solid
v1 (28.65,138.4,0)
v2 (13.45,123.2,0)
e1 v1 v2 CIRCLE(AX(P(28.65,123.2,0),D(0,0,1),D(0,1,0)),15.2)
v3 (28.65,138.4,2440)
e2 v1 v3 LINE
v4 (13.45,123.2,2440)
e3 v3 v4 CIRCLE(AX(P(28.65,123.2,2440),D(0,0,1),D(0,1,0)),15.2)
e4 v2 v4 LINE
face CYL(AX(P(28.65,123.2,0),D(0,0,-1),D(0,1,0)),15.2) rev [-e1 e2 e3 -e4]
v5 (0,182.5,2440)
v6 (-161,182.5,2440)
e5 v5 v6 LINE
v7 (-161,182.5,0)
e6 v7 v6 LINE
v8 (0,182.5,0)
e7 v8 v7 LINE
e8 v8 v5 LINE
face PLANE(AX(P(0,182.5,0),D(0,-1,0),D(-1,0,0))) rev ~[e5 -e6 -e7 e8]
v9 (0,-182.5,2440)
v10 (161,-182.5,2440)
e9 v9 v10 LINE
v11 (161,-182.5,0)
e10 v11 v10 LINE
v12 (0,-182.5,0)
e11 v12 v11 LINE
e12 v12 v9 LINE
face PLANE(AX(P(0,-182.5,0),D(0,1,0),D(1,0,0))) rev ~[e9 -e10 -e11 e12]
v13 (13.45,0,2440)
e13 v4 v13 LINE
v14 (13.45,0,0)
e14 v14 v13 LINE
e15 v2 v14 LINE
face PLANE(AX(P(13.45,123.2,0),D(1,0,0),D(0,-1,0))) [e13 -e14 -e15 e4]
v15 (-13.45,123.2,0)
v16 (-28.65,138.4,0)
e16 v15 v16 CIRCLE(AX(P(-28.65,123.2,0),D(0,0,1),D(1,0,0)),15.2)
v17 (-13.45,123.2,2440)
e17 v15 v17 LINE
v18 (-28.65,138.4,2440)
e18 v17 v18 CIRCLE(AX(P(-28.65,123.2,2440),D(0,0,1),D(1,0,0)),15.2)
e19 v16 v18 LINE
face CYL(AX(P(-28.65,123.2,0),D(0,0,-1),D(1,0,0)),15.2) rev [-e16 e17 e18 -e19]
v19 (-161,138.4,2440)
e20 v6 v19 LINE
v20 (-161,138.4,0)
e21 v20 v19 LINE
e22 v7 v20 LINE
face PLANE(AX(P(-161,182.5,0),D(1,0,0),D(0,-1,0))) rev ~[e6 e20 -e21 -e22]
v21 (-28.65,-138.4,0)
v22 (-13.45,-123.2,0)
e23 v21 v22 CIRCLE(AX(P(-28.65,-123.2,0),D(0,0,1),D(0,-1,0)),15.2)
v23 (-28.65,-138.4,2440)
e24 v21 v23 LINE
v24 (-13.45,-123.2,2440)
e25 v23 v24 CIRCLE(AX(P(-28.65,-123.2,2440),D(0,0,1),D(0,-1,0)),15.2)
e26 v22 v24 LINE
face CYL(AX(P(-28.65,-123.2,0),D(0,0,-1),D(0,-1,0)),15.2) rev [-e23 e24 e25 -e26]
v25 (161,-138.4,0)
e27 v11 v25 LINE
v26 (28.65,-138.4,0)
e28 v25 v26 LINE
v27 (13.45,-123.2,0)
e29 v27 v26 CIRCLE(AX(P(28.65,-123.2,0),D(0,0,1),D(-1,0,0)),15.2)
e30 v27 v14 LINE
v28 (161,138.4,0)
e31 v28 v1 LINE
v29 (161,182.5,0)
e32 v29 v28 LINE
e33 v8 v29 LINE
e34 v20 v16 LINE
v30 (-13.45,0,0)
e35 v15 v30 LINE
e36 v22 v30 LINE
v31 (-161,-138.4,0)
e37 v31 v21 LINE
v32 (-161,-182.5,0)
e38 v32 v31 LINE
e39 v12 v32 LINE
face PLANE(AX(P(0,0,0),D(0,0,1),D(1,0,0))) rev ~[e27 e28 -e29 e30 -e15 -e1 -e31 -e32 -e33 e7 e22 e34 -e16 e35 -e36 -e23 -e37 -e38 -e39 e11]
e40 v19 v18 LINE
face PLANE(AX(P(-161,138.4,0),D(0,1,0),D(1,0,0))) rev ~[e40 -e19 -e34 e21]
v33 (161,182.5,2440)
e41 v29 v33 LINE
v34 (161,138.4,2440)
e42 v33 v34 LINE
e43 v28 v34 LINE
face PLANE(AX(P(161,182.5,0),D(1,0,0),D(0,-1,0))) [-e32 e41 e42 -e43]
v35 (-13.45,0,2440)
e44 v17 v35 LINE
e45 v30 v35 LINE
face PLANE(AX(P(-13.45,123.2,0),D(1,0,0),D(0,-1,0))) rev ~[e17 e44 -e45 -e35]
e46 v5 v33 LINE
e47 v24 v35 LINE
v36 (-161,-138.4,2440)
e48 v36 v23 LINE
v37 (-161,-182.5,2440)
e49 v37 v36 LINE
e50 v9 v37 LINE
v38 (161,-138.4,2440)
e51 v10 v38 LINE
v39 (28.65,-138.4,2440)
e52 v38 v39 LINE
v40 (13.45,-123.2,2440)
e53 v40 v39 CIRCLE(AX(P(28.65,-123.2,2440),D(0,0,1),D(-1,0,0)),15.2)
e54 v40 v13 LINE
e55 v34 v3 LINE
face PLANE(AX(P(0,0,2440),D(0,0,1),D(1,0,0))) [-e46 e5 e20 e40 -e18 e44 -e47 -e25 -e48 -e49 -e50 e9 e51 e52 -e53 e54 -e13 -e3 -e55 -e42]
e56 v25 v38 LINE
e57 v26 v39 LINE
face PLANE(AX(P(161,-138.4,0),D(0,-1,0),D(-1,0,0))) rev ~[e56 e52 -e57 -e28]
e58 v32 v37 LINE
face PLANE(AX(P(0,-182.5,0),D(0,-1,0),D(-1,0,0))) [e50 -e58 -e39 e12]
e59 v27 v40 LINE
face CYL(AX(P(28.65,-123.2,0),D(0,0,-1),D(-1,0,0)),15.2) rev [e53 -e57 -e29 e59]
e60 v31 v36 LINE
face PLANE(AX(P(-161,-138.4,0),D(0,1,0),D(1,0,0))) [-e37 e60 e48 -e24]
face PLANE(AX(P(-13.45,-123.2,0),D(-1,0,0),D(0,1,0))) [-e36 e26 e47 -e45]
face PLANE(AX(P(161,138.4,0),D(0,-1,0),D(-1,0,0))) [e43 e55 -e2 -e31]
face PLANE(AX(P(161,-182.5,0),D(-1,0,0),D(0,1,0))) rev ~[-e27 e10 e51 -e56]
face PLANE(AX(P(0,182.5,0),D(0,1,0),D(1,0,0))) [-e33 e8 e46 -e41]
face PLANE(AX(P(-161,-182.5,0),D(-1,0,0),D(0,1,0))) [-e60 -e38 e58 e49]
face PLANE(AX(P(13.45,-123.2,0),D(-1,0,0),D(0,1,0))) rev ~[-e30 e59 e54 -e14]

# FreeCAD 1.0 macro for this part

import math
import FreeCAD as App
import Part
import Sketcher
from FreeCAD import Vector
Q = App.Units.Quantity

doc = App.newDocument("Part")
body = doc.addObject("PartDesign::Body", "Body")

sketch1 = body.newObject("Sketcher::SketchObject", "Sketch")
sketch1.AttachmentSupport = (doc.getObject("XY_Plane"), [""])
sketch1.MapMode = "FlatFace"
sketch1.addGeometry([
    Part.LineSegment(Vector(-161, -138.4, 0), Vector(-161, -182.5, 0)),
    Part.LineSegment(Vector(-161, -182.5, 0), Vector(161, -182.5, 0)),
    Part.LineSegment(Vector(161, -182.5, 0), Vector(161, -138.4, 0)),
    Part.LineSegment(Vector(161, -138.4, 0), Vector(28.65, -138.4, 0)),
    Part.ArcOfCircle(Part.Circle(Vector(28.65, -123.2, 0), Vector(0, 0, 1), 15.2), math.radians(180), math.radians(270)),
    Part.LineSegment(Vector(13.45, -123.2, 0), Vector(13.45, 123.2, 0)),
    Part.ArcOfCircle(Part.Circle(Vector(28.65, 123.2, 0), Vector(0, 0, 1), 15.2), math.radians(90), math.radians(180)),
    Part.LineSegment(Vector(28.65, 138.4, 0), Vector(161, 138.4, 0)),
    Part.LineSegment(Vector(161, 138.4, 0), Vector(161, 182.5, 0)),
    Part.LineSegment(Vector(161, 182.5, 0), Vector(-161, 182.5, 0)),
    Part.LineSegment(Vector(-161, 182.5, 0), Vector(-161, 138.4, 0)),
    Part.LineSegment(Vector(-161, 138.4, 0), Vector(-28.65, 138.4, 0)),
    Part.ArcOfCircle(Part.Circle(Vector(-28.65, 123.2, 0), Vector(0, 0, 1), 15.2), math.radians(0), math.radians(90)),
    Part.LineSegment(Vector(-13.45, 123.2, 0), Vector(-13.45, -123.2, 0)),
    Part.ArcOfCircle(Part.Circle(Vector(-28.65, -123.2, 0), Vector(0, 0, 1), 15.2), math.radians(-90), math.radians(0)),
    Part.LineSegment(Vector(-28.65, -138.4, 0), Vector(-161, -138.4, 0)),
], False)
sketch1.addConstraint([
    Sketcher.Constraint("Coincident", 0, 2, 1, 1),
    Sketcher.Constraint("Coincident", 1, 2, 2, 1),
    Sketcher.Constraint("Coincident", 2, 2, 3, 1),
    Sketcher.Constraint("Tangent", 3, 2, 4, 2),
    Sketcher.Constraint("Tangent", 4, 1, 5, 1),
    Sketcher.Constraint("Tangent", 5, 2, 6, 2),
    Sketcher.Constraint("Tangent", 6, 1, 7, 1),
    Sketcher.Constraint("Coincident", 7, 2, 8, 1),
    Sketcher.Constraint("Coincident", 8, 2, 9, 1),
    Sketcher.Constraint("Coincident", 9, 2, 10, 1),
    Sketcher.Constraint("Coincident", 10, 2, 11, 1),
    Sketcher.Constraint("Tangent", 11, 2, 12, 2),
    Sketcher.Constraint("Tangent", 12, 1, 13, 1),
    Sketcher.Constraint("Tangent", 13, 2, 14, 2),
    Sketcher.Constraint("Tangent", 14, 1, 15, 1),
    Sketcher.Constraint("Coincident", 15, 2, 0, 1),
    Sketcher.Constraint("Vertical", 0),
    Sketcher.Constraint("Horizontal", 1),
    Sketcher.Constraint("Vertical", 2),
    Sketcher.Constraint("Horizontal", 3),
    Sketcher.Constraint("Vertical", 5),
    Sketcher.Constraint("Horizontal", 7),
    Sketcher.Constraint("Vertical", 8),
    Sketcher.Constraint("Horizontal", 9),
    Sketcher.Constraint("Vertical", 10),
    Sketcher.Constraint("Horizontal", 11),
    Sketcher.Constraint("Vertical", 13),
    Sketcher.Constraint("Horizontal", 15),
    Sketcher.Constraint("Equal", 4, 6),
    Sketcher.Constraint("Equal", 6, 12),
    Sketcher.Constraint("Equal", 12, 14),
    Sketcher.Constraint("Symmetric", 4, 3, 12, 3, -1, 1),
    Sketcher.Constraint("Symmetric", 0, 2, 8, 2, -1, 1),
    Sketcher.Constraint("Symmetric", 7, 2, 10, 2, -2),
    Sketcher.Constraint("Symmetric", 2, 2, 15, 2, -2),
    Sketcher.Constraint("Radius", 4, Q("15.2 mm")),
    Sketcher.Constraint("DistanceY", 0, 2, 0, 1, Q("44.1 mm")),
    Sketcher.Constraint("DistanceX", 0, 2, -1, 1, Q("161 mm")),
    Sketcher.Constraint("DistanceY", 0, 2, -1, 1, Q("182.5 mm")),
    Sketcher.Constraint("DistanceX", -1, 1, 4, 1, Q("13.45 mm")),
])
pad1 = body.newObject("PartDesign::Pad", "Pad")
pad1.Profile = sketch1
pad1.Length = 2440

doc.recompute()
